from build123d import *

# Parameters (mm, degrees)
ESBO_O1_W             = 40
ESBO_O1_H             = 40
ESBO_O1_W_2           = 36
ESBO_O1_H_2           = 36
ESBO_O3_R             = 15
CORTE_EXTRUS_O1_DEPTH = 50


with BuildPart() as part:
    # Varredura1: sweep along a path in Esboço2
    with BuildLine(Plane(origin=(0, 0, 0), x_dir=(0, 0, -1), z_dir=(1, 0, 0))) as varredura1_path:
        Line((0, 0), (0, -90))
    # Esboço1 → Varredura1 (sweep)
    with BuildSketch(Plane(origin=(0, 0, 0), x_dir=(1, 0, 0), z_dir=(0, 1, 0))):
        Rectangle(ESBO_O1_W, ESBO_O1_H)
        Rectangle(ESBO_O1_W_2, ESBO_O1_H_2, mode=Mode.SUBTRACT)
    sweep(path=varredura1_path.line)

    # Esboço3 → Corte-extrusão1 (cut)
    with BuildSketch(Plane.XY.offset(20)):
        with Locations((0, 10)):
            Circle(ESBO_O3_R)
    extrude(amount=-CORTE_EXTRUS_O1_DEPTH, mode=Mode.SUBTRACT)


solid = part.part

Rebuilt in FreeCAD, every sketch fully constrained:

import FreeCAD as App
import Part
import Sketcher


def add_polygon(sketch, points):
    """Adds a closed chain of lines whose ends are joined by coincident constraints."""
    first, n = sketch.GeometryCount, len(points)
    for a, b in zip(points, points[1:] + points[:1]):
        sketch.addGeometry(Part.LineSegment(App.Vector(*a, 0), App.Vector(*b, 0)), False)
    for i in range(n):
        sketch.addConstraint(Sketcher.Constraint("Coincident", first + i, 2, first + (i + 1) % n, 1))

doc = App.newDocument("Part")
params = doc.addObject("Spreadsheet::Sheet", "Params")
for row, (alias, value) in enumerate([
    ("sketch1_width", "40 mm"),
    ("sketch1_width2", "36 mm"),
    ("sketch2_height", "90 mm"),
    ("sketch3_diameter", "30 mm"),
    ("pocket1_length", "50 mm"),
], start=1):
    params.set(f"A{row}", alias)
    params.set(f"B{row}", "=" + value)
    params.setAlias(f"B{row}", alias)

body = doc.addObject("PartDesign::Body", "Body")

sketch1 = body.newObject("Sketcher::SketchObject", "Sketch")
sketch1.AttachmentSupport = (doc.getObject("XZ_Plane"), [""])
sketch1.MapMode = "FlatFace"
add_polygon(sketch1, [(-20, -20), (-20, 20), (20, 20), (20, -20)])
add_polygon(sketch1, [(18, 18), (-18, 18), (-18, -18), (18, -18)])
sketch1.addConstraint([
    Sketcher.Constraint("Vertical", 0),
    Sketcher.Constraint("Horizontal", 1),
    Sketcher.Constraint("Vertical", 2),
    Sketcher.Constraint("Horizontal", 3),
    Sketcher.Constraint("Horizontal", 4),
    Sketcher.Constraint("Vertical", 5),
    Sketcher.Constraint("Horizontal", 6),
    Sketcher.Constraint("Vertical", 7),
    Sketcher.Constraint("Symmetric", 0, 2, 2, 2, -1, 1),
    Sketcher.Constraint("Symmetric", 4, 2, 6, 2, -1, 1),
    Sketcher.Constraint("Equal", 3, 0),
    Sketcher.Constraint("Equal", 6, 5),
    Sketcher.Constraint("DistanceX", 1, 1, 1, 2, 40.0),
    Sketcher.Constraint("DistanceX", 4, 2, 4, 1, 36.0),
])
sketch1.setExpression("Constraints[20]", "Params.sketch1_width")
sketch1.setExpression("Constraints[21]", "Params.sketch1_width2")

sketch2 = body.newObject("Sketcher::SketchObject", "Sketch001")
sketch2.AttachmentSupport = (doc.getObject("XY_Plane"), [""])
sketch2.MapMode = "FlatFace"
sketch2.addGeometry(Part.LineSegment(App.Vector(0, 0, 0), App.Vector(0, -90, 0)), False)
sketch2.addConstraint([
    Sketcher.Constraint("Vertical", 0),
    Sketcher.Constraint("Coincident", 0, 1, -1, 1),
    Sketcher.Constraint("DistanceY", 0, 2, 0, 1, 90.0),
])
sketch2.setExpression("Constraints[2]", "Params.sketch2_height")
doc.recompute()

additivepipe = body.newObject("PartDesign::AdditivePipe", "AdditivePipe")
additivepipe.Profile = sketch1
additivepipe.Spine = (sketch2, ["Edge1"])

sketch3 = body.newObject("Sketcher::SketchObject", "Sketch002")
sketch3.AttachmentSupport = (doc.getObject("XY_Plane"), [""])
sketch3.MapMode = "FlatFace"
sketch3.AttachmentOffset = App.Placement(App.Vector(0, 0, 20), App.Rotation())
sketch3.addGeometry(Part.Circle(App.Vector(0, 10, 0), App.Vector(0, 0, 1), 15), False)
sketch3.addConstraint([
    Sketcher.Constraint("PointOnObject", 0, 3, -2),
    Sketcher.Constraint("Diameter", 0, 30.0),
    Sketcher.Constraint("DistanceY", -1, 1, 0, 3, 10.0),
])
sketch3.setExpression("Constraints[1]", "Params.sketch3_diameter")
pocket1 = body.newObject("PartDesign::Pocket", "Pocket")
pocket1.Profile = sketch3
pocket1.setExpression("Length", "Params.pocket1_length")

doc.recompute()
